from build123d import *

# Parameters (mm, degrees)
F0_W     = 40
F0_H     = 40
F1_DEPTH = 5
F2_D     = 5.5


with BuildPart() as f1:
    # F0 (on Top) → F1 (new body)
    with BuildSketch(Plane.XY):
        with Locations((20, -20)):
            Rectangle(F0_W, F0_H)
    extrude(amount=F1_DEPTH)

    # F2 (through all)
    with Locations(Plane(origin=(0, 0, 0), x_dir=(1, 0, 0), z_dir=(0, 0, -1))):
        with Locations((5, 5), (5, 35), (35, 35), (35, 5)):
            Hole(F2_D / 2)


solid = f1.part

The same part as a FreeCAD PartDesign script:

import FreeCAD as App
import Part
import Sketcher

doc = App.newDocument("Part")
body = doc.addObject("PartDesign::Body", "Body")

sketch1 = body.newObject("Sketcher::SketchObject", "Sketch")
sketch1.AttachmentSupport = (doc.getObject("XY_Plane"), [""])
sketch1.MapMode = "FlatFace"
sketch1.addGeometry([
    Part.LineSegment(App.Vector(0, 0, 0), App.Vector(0, -40, 0)),
    Part.LineSegment(App.Vector(0, -40, 0), App.Vector(40, -40, 0)),
    Part.LineSegment(App.Vector(40, -40, 0), App.Vector(40, 0, 0)),
    Part.LineSegment(App.Vector(40, 0, 0), App.Vector(0, 0, 0)),
], False)
sketch1.addConstraint([
    Sketcher.Constraint("Coincident", 0, 2, 1, 1),
    Sketcher.Constraint("Coincident", 1, 2, 2, 1),
    Sketcher.Constraint("Coincident", 2, 2, 3, 1),
    Sketcher.Constraint("Coincident", 3, 2, 0, 1),
    Sketcher.Constraint("Vertical", 0),
    Sketcher.Constraint("Horizontal", 1),
    Sketcher.Constraint("Vertical", 2),
    Sketcher.Constraint("Horizontal", 3),
    Sketcher.Constraint("Coincident", 3, 2, -1, 1),
    Sketcher.Constraint("Equal", 3, 0),
    Sketcher.Constraint("DistanceX", 1, 1, 1, 2, 40.0),
])
pad1 = body.newObject("PartDesign::Pad", "Pad")
pad1.Profile = sketch1
pad1.Length = 5

sketch2 = body.newObject("Sketcher::SketchObject", "Sketch001")
sketch2.AttachmentSupport = (doc.getObject("XY_Plane"), [""])
sketch2.MapMode = "FlatFace"
sketch2.addGeometry([
    Part.Circle(App.Vector(5, -5, 0), App.Vector(0, 0, 1), 2.8),
    Part.Circle(App.Vector(5, -35, 0), App.Vector(0, 0, 1), 2.8),
    Part.Circle(App.Vector(35, -35, 0), App.Vector(0, 0, 1), 2.8),
    Part.Circle(App.Vector(35, -5, 0), App.Vector(0, 0, 1), 2.8),
], False)
sketch2.addConstraint([
    Sketcher.Constraint("Equal", 0, 1),
    Sketcher.Constraint("Equal", 1, 2),
    Sketcher.Constraint("Equal", 2, 3),
    Sketcher.Constraint("Horizontal", 1, 3, 2, 3),
    Sketcher.Constraint("Horizontal", 0, 3, 3, 3),
    Sketcher.Constraint("Vertical", 0, 3, 1, 3),
    Sketcher.Constraint("Vertical", 2, 3, 3, 3),
    Sketcher.Constraint("Diameter", 0, 5.5),
    Sketcher.Constraint("DistanceX", -1, 1, 0, 3, 5.0),
    Sketcher.Constraint("DistanceY", 0, 3, -1, 1, 5.0),
    Sketcher.Constraint("DistanceY", 1, 3, -1, 1, 35.0),
    Sketcher.Constraint("DistanceX", -1, 1, 2, 3, 35.0),
])
doc.recompute()
hole = body.newObject("PartDesign::Hole", "Hole")
hole.Profile = sketch2
hole.ThreadType = "None"
hole.Diameter = 5.5
hole.DepthType = "ThroughAll"
hole.Reversed = True

doc.recompute()
